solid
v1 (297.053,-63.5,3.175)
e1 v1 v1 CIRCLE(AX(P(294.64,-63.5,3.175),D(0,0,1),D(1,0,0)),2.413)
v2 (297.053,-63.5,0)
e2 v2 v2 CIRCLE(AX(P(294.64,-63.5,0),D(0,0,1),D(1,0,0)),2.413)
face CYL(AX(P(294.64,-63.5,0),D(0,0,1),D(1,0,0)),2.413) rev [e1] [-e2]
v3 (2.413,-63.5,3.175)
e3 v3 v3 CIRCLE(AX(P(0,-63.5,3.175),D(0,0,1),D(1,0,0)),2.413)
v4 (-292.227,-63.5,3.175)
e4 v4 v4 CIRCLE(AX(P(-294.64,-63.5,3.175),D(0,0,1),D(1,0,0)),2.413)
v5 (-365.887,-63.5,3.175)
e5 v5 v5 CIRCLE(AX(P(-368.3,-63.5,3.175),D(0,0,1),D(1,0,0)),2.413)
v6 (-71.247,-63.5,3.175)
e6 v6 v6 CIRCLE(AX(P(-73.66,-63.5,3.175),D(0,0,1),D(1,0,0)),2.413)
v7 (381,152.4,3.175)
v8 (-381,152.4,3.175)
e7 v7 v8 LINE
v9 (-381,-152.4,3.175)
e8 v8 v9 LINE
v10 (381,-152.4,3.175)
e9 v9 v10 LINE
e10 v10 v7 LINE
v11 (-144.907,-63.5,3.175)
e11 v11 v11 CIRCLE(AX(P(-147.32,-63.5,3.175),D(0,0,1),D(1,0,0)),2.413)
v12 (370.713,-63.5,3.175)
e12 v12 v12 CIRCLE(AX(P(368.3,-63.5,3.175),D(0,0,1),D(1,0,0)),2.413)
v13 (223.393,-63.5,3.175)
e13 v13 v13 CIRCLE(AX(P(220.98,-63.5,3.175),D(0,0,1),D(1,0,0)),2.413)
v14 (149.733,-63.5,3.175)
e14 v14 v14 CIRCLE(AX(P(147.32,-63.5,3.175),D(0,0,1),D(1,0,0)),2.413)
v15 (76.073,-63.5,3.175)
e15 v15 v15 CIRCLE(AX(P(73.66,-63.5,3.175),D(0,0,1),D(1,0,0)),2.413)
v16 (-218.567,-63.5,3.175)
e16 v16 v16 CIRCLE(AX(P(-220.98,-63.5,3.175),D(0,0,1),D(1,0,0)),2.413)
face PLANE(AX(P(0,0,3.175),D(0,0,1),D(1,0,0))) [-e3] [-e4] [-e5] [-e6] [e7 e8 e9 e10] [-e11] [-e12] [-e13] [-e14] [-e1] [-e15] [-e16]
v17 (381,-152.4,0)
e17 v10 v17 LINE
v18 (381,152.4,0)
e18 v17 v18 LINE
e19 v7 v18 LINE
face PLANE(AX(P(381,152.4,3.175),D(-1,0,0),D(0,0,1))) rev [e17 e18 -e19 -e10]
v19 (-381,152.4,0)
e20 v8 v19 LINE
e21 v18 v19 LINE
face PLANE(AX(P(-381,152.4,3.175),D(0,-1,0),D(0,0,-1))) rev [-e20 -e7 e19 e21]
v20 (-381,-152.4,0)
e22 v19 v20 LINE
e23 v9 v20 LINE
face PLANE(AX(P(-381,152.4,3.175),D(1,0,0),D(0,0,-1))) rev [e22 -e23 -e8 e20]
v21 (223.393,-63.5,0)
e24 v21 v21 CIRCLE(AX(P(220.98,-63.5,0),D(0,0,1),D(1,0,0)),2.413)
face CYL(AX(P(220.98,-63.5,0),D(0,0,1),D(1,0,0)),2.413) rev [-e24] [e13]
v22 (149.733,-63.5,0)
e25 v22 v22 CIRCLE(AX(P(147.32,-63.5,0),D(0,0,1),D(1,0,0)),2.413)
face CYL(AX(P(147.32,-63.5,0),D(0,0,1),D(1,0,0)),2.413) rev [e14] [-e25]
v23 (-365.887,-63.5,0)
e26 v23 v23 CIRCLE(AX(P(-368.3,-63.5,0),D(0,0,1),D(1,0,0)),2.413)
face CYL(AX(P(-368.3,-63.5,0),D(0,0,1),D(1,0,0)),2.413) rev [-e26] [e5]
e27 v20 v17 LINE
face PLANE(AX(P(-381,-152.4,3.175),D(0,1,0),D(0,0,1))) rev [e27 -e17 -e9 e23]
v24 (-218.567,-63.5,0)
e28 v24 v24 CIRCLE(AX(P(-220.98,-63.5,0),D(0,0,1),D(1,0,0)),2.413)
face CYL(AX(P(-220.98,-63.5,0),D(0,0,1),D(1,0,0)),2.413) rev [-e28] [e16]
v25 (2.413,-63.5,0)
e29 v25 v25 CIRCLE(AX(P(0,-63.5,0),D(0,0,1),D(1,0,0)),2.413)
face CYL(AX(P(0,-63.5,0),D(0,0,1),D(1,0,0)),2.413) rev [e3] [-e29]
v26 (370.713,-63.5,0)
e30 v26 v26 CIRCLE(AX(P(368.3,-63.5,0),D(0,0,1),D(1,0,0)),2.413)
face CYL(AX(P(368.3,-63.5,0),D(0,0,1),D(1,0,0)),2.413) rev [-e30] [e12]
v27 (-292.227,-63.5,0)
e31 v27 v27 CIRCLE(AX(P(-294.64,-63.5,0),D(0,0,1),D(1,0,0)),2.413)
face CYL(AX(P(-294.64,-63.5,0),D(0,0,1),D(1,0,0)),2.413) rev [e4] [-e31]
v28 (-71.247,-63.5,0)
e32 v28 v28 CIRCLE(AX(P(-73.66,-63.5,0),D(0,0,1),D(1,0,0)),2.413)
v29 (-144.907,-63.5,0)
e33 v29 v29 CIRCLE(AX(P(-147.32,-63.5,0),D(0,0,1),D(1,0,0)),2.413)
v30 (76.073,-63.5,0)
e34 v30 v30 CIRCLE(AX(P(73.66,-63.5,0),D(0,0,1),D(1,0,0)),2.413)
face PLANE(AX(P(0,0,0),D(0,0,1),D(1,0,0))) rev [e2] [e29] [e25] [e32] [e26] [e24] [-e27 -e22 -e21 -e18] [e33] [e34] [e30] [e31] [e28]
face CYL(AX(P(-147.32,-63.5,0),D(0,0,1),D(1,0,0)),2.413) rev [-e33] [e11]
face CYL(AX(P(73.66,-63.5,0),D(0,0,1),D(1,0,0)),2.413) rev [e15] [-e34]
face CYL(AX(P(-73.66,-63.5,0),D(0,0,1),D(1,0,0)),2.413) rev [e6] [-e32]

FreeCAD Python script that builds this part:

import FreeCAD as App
import Part
import Sketcher
from FreeCAD import Vector
Q = App.Units.Quantity

doc = App.newDocument("Part")
body = doc.addObject("PartDesign::Body", "Body")

# Sketch on XY plane
sketch1 = doc.addObject("Sketcher::SketchObject", "Sketch")
body.addObject(sketch1)
sketch1.AttachmentSupport = (doc.XY_Plane, [""])
sketch1.MapMode = "FlatFace"
sketch1.addGeometry([
    Part.LineSegment(Vector(-381, 152.4, 0), Vector(-381, -152.4, 0)),
    Part.LineSegment(Vector(-381, -152.4, 0), Vector(381, -152.4, 0)),
    Part.LineSegment(Vector(381, -152.4, 0), Vector(381, 152.4, 0)),
    Part.LineSegment(Vector(381, 152.4, 0), Vector(-381, 152.4, 0)),
], False)
sketch1.addConstraint([
    Sketcher.Constraint("Coincident", 0, 2, 1, 1),
    Sketcher.Constraint("Coincident", 1, 2, 2, 1),
    Sketcher.Constraint("Coincident", 2, 2, 3, 1),
    Sketcher.Constraint("Coincident", 3, 2, 0, 1),
    Sketcher.Constraint("Vertical", 0),
    Sketcher.Constraint("Horizontal", 1),
    Sketcher.Constraint("Vertical", 2),
    Sketcher.Constraint("Horizontal", 3),
    Sketcher.Constraint("Symmetric", 0, 2, 2, 2, -1, 1),
    Sketcher.Constraint("DistanceX", 1, 1, 1, 2, Q("30 in")),
    Sketcher.Constraint("DistanceY", 0, 2, 0, 1, Q("12 in")),
])
pad1 = doc.addObject("PartDesign::Pad", "Pad")
body.addObject(pad1)
pad1.Profile = sketch1
pad1.Length = Q("0.125 in")

# Sketch on XY plane
sketch2 = doc.addObject("Sketcher::SketchObject", "Sketch001")
body.addObject(sketch2)
sketch2.AttachmentSupport = (doc.XY_Plane, [""])
sketch2.MapMode = "FlatFace"
sketch2.AttachmentOffset = App.Placement(Vector(0, 0, 0.125 * 25.4), App.Rotation())
sketch2.addGeometry([
    Part.Circle(Vector(-368.3, -63.5, 0), Vector(0, 0, 1), 2.413),  # 0
    Part.Circle(Vector(-294.64, -63.5, 0), Vector(0, 0, 1), 2.413),  # 1
    Part.Circle(Vector(-220.98, -63.5, 0), Vector(0, 0, 1), 2.413),  # 2
    Part.Circle(Vector(-147.32, -63.5, 0), Vector(0, 0, 1), 2.413),  # 3
    Part.Circle(Vector(-73.66, -63.5, 0), Vector(0, 0, 1), 2.413),  # 4
    Part.Circle(Vector(0, -63.5, 0), Vector(0, 0, 1), 2.413),  # 5
    Part.Circle(Vector(73.66, -63.5, 0), Vector(0, 0, 1), 2.413),  # 6
    Part.Circle(Vector(147.32, -63.5, 0), Vector(0, 0, 1), 2.413),  # 7
    Part.Circle(Vector(220.98, -63.5, 0), Vector(0, 0, 1), 2.413),  # 8
    Part.Circle(Vector(294.64, -63.5, 0), Vector(0, 0, 1), 2.413),  # 9
    Part.Circle(Vector(368.3, -63.5, 0), Vector(0, 0, 1), 2.413),  # 10
], False)
sketch2.addConstraint([
    Sketcher.Constraint("Equal", 0, 1),
    Sketcher.Constraint("Equal", 1, 2),
    Sketcher.Constraint("Equal", 2, 3),
    Sketcher.Constraint("Equal", 3, 4),
    Sketcher.Constraint("Equal", 4, 5),
    Sketcher.Constraint("Equal", 5, 6),
    Sketcher.Constraint("Equal", 6, 7),
    Sketcher.Constraint("Equal", 7, 8),
    Sketcher.Constraint("Equal", 8, 9),
    Sketcher.Constraint("Equal", 9, 10),
    Sketcher.Constraint("Symmetric", 4, 3, 6, 3, -2),
    Sketcher.Constraint("Symmetric", 3, 3, 7, 3, -2),
    Sketcher.Constraint("Symmetric", 2, 3, 8, 3, -2),
    Sketcher.Constraint("Symmetric", 1, 3, 9, 3, -2),
    Sketcher.Constraint("Symmetric", 0, 3, 10, 3, -2),
    Sketcher.Constraint("PointOnObject", 5, 3, -2),
    Sketcher.Constraint("Horizontal", 0, 3, 1, 3),
    Sketcher.Constraint("Horizontal", 1, 3, 2, 3),
    Sketcher.Constraint("Horizontal", 2, 3, 3, 3),
    Sketcher.Constraint("Horizontal", 3, 3, 4, 3),
    Sketcher.Constraint("Horizontal", 4, 3, 5, 3),
    Sketcher.Constraint("Diameter", 0, Q("0.19 in")),
    Sketcher.Constraint("DistanceX", 0, 3, -1, 1, Q("14.5 in")),
    Sketcher.Constraint("DistanceY", 0, 3, -1, 1, Q("2.5 in")),
    Sketcher.Constraint("DistanceX", 1, 3, -1, 1, Q("11.6 in")),
    Sketcher.Constraint("DistanceX", 2, 3, -1, 1, Q("8.7 in")),
    Sketcher.Constraint("DistanceX", 3, 3, -1, 1, Q("5.8 in")),
    Sketcher.Constraint("DistanceX", 4, 3, -1, 1, Q("2.9 in")),
])
pocket1 = doc.addObject("PartDesign::Pocket", "Pocket")
body.addObject(pocket1)
pocket1.Profile = sketch2
pocket1.Type = "ThroughAll"

doc.recompute()
